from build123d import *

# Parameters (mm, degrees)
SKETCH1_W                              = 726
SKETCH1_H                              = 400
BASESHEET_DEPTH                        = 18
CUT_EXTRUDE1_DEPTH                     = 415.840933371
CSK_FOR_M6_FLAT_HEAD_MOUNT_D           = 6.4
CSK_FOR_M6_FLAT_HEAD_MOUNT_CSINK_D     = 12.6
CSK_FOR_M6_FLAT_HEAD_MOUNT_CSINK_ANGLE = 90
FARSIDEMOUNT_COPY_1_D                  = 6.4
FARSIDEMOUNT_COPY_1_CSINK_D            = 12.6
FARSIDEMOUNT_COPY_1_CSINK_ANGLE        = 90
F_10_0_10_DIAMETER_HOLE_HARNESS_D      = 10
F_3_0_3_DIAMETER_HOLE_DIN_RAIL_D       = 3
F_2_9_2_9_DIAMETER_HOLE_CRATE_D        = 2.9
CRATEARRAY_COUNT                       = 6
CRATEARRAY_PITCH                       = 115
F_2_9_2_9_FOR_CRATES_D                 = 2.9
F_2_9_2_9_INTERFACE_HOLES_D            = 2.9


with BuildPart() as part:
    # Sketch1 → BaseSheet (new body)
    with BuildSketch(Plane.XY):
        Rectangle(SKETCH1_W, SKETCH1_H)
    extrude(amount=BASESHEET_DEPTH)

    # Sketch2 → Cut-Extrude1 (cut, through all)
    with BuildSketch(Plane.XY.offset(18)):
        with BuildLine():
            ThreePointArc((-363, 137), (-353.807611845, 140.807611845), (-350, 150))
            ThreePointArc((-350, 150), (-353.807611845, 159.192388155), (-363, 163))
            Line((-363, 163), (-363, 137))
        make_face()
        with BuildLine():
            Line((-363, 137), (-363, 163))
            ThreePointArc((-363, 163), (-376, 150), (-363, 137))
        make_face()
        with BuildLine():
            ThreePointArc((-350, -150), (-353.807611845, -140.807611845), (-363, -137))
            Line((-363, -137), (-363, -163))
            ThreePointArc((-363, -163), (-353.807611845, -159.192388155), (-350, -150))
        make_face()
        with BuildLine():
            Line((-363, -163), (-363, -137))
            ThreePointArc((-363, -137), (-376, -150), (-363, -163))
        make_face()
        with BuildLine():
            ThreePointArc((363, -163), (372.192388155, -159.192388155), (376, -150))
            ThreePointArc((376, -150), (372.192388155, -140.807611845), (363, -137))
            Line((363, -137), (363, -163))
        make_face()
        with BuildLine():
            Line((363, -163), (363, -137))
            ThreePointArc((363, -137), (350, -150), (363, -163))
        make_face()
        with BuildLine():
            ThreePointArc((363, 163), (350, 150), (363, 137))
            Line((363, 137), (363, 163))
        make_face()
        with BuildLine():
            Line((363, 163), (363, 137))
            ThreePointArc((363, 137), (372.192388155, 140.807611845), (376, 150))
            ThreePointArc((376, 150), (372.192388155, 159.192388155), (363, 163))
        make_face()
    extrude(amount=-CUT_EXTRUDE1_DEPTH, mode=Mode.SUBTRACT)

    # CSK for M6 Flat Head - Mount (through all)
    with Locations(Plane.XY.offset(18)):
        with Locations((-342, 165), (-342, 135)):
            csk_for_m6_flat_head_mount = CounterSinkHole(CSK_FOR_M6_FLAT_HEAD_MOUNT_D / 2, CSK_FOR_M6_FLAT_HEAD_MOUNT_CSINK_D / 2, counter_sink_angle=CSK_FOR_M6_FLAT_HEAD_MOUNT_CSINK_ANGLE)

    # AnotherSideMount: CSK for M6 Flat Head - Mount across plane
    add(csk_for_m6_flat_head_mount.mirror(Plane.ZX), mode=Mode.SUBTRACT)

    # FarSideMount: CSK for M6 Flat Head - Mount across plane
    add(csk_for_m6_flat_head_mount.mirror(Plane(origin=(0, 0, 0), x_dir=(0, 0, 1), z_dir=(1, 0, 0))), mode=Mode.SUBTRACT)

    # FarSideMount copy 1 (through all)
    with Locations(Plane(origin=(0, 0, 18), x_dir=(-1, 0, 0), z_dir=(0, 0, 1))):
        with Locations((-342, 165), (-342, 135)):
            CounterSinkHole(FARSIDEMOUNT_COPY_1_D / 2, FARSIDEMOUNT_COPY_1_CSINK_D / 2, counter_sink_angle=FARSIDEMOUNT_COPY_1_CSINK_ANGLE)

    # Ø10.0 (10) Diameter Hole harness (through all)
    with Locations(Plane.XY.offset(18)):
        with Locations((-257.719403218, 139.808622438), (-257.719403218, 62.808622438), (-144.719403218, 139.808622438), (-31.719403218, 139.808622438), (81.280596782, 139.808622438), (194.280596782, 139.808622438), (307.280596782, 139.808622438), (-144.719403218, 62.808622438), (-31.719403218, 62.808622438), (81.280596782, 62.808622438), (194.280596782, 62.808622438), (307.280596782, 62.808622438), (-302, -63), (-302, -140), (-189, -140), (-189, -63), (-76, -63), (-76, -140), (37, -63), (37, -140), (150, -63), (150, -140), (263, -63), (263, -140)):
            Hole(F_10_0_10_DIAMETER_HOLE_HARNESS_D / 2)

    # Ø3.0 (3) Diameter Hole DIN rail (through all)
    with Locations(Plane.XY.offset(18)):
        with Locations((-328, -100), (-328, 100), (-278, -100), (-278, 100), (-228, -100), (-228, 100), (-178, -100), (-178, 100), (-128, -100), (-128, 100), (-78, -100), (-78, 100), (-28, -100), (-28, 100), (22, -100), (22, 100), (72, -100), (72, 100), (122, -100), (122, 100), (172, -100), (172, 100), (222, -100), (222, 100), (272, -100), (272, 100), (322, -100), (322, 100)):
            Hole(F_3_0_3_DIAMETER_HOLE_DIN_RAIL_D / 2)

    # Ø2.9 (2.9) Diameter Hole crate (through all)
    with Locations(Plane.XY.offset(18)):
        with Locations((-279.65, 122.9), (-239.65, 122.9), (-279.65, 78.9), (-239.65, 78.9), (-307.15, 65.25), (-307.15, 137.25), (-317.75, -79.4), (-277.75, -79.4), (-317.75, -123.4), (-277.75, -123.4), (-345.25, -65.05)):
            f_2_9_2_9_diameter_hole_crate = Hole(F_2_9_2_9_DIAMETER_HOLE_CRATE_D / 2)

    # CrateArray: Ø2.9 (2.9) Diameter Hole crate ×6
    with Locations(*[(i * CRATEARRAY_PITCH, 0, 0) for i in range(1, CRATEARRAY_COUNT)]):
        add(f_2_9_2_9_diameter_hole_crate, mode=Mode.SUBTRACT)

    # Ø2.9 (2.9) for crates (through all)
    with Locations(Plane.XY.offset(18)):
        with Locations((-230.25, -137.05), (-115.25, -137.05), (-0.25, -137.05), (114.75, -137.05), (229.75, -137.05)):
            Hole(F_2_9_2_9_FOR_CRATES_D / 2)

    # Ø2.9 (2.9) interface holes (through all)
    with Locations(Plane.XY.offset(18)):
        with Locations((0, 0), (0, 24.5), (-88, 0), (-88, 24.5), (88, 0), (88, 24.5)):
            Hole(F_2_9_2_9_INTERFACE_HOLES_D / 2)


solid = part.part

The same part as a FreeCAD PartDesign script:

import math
import FreeCAD as App
import Part
import Sketcher
Q = App.Units.Quantity


def add_polygon(sketch, points):
    """Adds a closed chain of lines whose ends are joined by coincident constraints."""
    first, n = sketch.GeometryCount, len(points)
    for a, b in zip(points, points[1:] + points[:1]):
        sketch.addGeometry(Part.LineSegment(App.Vector(*a, 0), App.Vector(*b, 0)), False)
    for i in range(n):
        sketch.addConstraint(Sketcher.Constraint("Coincident", first + i, 2, first + (i + 1) % n, 1))

doc = App.newDocument("Part")
body = doc.addObject("PartDesign::Body", "Body")

# Sketch on XY plane
sketch1 = body.newObject("Sketcher::SketchObject", "Sketch")
sketch1.AttachmentSupport = (doc.getObject("XY_Plane"), [""])
sketch1.MapMode = "FlatFace"
add_polygon(sketch1, [(-363, 200), (-363, -200), (363, -200), (363, 200)])  # lines 0-3
sketch1.addConstraint([
    Sketcher.Constraint("Vertical", 0),
    Sketcher.Constraint("Horizontal", 1),
    Sketcher.Constraint("Vertical", 2),
    Sketcher.Constraint("Horizontal", 3),
    Sketcher.Constraint("Symmetric", 0, 2, 2, 2, -1, 1),
    Sketcher.Constraint("DistanceX", 1, 1, 1, 2, Q("726 mm")),
    Sketcher.Constraint("DistanceY", 0, 2, 0, 1, Q("400 mm")),
])
pad1 = body.newObject("PartDesign::Pad", "Pad")
pad1.Profile = sketch1
pad1.Length = 18

# Sketch on XY plane
sketch2 = body.newObject("Sketcher::SketchObject", "Sketch001")
sketch2.AttachmentSupport = (doc.getObject("XY_Plane"), [""])
sketch2.MapMode = "FlatFace"
sketch2.AttachmentOffset = App.Placement(App.Vector(0, 0, 18), App.Rotation())
sketch2.addGeometry([
    Part.ArcOfCircle(Part.Circle(App.Vector(-363, 150, 0), App.Vector(0, 0, 1), 13), math.radians(-90), math.radians(0)),  # 0
    Part.ArcOfCircle(Part.Circle(App.Vector(-363, 150, 0), App.Vector(0, 0, 1), 13), math.radians(0), math.radians(90)),  # 1
    Part.ArcOfCircle(Part.Circle(App.Vector(-363, 150, 0), App.Vector(0, 0, 1), 13), math.radians(90), math.radians(270)),  # 2
    Part.ArcOfCircle(Part.Circle(App.Vector(-363, -150, 0), App.Vector(0, 0, 1), 13), math.radians(0), math.radians(90)),  # 3
    Part.ArcOfCircle(Part.Circle(App.Vector(-363, -150, 0), App.Vector(0, 0, 1), 13), math.radians(90), math.radians(270)),  # 4
    Part.ArcOfCircle(Part.Circle(App.Vector(-363, -150, 0), App.Vector(0, 0, 1), 13), math.radians(-90), math.radians(0)),  # 5
    Part.ArcOfCircle(Part.Circle(App.Vector(363, -150, 0), App.Vector(0, 0, 1), 13), math.radians(-90), math.radians(0)),  # 6
    Part.ArcOfCircle(Part.Circle(App.Vector(363, -150, 0), App.Vector(0, 0, 1), 13), math.radians(0), math.radians(90)),  # 7
    Part.ArcOfCircle(Part.Circle(App.Vector(363, -150, 0), App.Vector(0, 0, 1), 13), math.radians(90), math.radians(270)),  # 8
    Part.ArcOfCircle(Part.Circle(App.Vector(363, 150, 0), App.Vector(0, 0, 1), 13), math.radians(90), math.radians(270)),  # 9
    Part.ArcOfCircle(Part.Circle(App.Vector(363, 150, 0), App.Vector(0, 0, 1), 13), math.radians(-90), math.radians(0)),  # 10
    Part.ArcOfCircle(Part.Circle(App.Vector(363, 150, 0), App.Vector(0, 0, 1), 13), math.radians(0), math.radians(90)),  # 11
], False)
sketch2.addConstraint([
    Sketcher.Constraint("Tangent", 0, 2, 1, 1),
    Sketcher.Constraint("Tangent", 1, 2, 2, 1),
    Sketcher.Constraint("Tangent", 2, 2, 0, 1),
    Sketcher.Constraint("Tangent", 3, 2, 4, 1),
    Sketcher.Constraint("Tangent", 4, 2, 5, 1),
    Sketcher.Constraint("Tangent", 5, 2, 3, 1),
    Sketcher.Constraint("Tangent", 6, 2, 7, 1),
    Sketcher.Constraint("Tangent", 7, 2, 8, 1),
    Sketcher.Constraint("Tangent", 8, 2, 6, 1),
    Sketcher.Constraint("Tangent", 9, 2, 10, 1),
    Sketcher.Constraint("Tangent", 10, 2, 11, 1),
    Sketcher.Constraint("Tangent", 11, 2, 9, 1),
    Sketcher.Constraint("Equal", 2, 3),
    Sketcher.Constraint("Equal", 5, 6),
    Sketcher.Constraint("Equal", 8, 9),
    Sketcher.Constraint("Symmetric", 0, 3, 6, 3, -1, 1),
    Sketcher.Constraint("Symmetric", 3, 3, 9, 3, -1, 1),
    Sketcher.Constraint("Symmetric", 3, 3, 6, 3, -2),
    Sketcher.Constraint("Horizontal", 11, 3, 0, 2),
    Sketcher.Constraint("Horizontal", 8, 3, 5, 2),
    Sketcher.Constraint("Horizontal", 5, 2, 6, 2),
    Sketcher.Constraint("Horizontal", 0, 2, 10, 2),
    Sketcher.Constraint("Vertical", 5, 3, 1, 2),
    Sketcher.Constraint("Vertical", 1, 2, 2, 2),
    Sketcher.Constraint("Vertical", 2, 2, 3, 2),
    Sketcher.Constraint("Vertical", 3, 2, 4, 2),
    Sketcher.Constraint("Vertical", 11, 3, 7, 2),
    Sketcher.Constraint("Vertical", 7, 2, 8, 2),
    Sketcher.Constraint("Vertical", 8, 2, 9, 2),
    Sketcher.Constraint("Vertical", 9, 2, 11, 2),
    Sketcher.Constraint("Radius", 0, Q("13 mm")),
    Sketcher.Constraint("DistanceX", 0, 3, -1, 1, Q("363 mm")),
    Sketcher.Constraint("DistanceY", -1, 1, 0, 3, Q("150 mm")),
])
pocket1 = body.newObject("PartDesign::Pocket", "Pocket")
pocket1.Profile = sketch2
pocket1.Type = "ThroughAll"

# Sketch on XY plane
sketch3 = body.newObject("Sketcher::SketchObject", "Sketch002")
sketch3.AttachmentSupport = (doc.getObject("XY_Plane"), [""])
sketch3.MapMode = "FlatFace"
sketch3.AttachmentOffset = App.Placement(App.Vector(0, 0, 18), App.Rotation())
sketch3.addGeometry([
    Part.Circle(App.Vector(-342, 165, 0), App.Vector(0, 0, 1), 3.2),
    Part.Circle(App.Vector(-342, 135, 0), App.Vector(0, 0, 1), 3.2),
], False)
sketch3.addConstraint([
    Sketcher.Constraint("Equal", 0, 1),
    Sketcher.Constraint("Vertical", 0, 3, 1, 3),
    Sketcher.Constraint("Diameter", 0, Q("6.4 mm")),
    Sketcher.Constraint("DistanceX", 0, 3, -1, 1, Q("342 mm")),
    Sketcher.Constraint("DistanceY", -1, 1, 0, 3, Q("165 mm")),
    Sketcher.Constraint("DistanceY", -1, 1, 1, 3, Q("135 mm")),
])
doc.recompute()
hole = body.newObject("PartDesign::Hole", "Hole")
hole.Profile = sketch3
hole.ThreadType = "None"
hole.Diameter = 6.4
hole.DepthType = "ThroughAll"
hole.HoleCutType = "Countersink"
hole.HoleCutDiameter = 12.6
hole.HoleCutCountersinkAngle = 90
doc.recompute()

mirrored = body.newObject("PartDesign::Mirrored", "Mirrored")
mirrored.Originals = [hole]
mirrored.MirrorPlane = (doc.getObject("XZ_Plane"), [""])
body.Tip = mirrored
doc.recompute()

mirrored2 = body.newObject("PartDesign::Mirrored", "Mirrored001")
mirrored2.Originals = [hole]
mirrored2.MirrorPlane = (doc.getObject("YZ_Plane"), [""])
body.Tip = mirrored2

# Sketch on XY plane
sketch4 = body.newObject("Sketcher::SketchObject", "Sketch003")
sketch4.AttachmentSupport = (doc.getObject("XY_Plane"), [""])
sketch4.MapMode = "FlatFace"
sketch4.AttachmentOffset = App.Placement(App.Vector(0, 0, 18), App.Rotation())
sketch4.addGeometry([
    Part.Circle(App.Vector(342, -165, 0), App.Vector(0, 0, 1), 3.2),
    Part.Circle(App.Vector(342, -135, 0), App.Vector(0, 0, 1), 3.2),
], False)
sketch4.addConstraint([
    Sketcher.Constraint("Equal", 0, 1),
    Sketcher.Constraint("Vertical", 0, 3, 1, 3),
    Sketcher.Constraint("Diameter", 0, Q("6.4 mm")),
    Sketcher.Constraint("DistanceX", -1, 1, 0, 3, Q("342 mm")),
    Sketcher.Constraint("DistanceY", 0, 3, -1, 1, Q("165 mm")),
    Sketcher.Constraint("DistanceY", 1, 3, -1, 1, Q("135 mm")),
])
doc.recompute()
hole2 = body.newObject("PartDesign::Hole", "Hole001")
hole2.Profile = sketch4
hole2.ThreadType = "None"
hole2.Diameter = 6.4
hole2.DepthType = "ThroughAll"
hole2.HoleCutType = "Countersink"
hole2.HoleCutDiameter = 12.6
hole2.HoleCutCountersinkAngle = 90

# Sketch on XY plane
sketch5 = body.newObject("Sketcher::SketchObject", "Sketch004")
sketch5.AttachmentSupport = (doc.getObject("XY_Plane"), [""])
sketch5.MapMode = "FlatFace"
sketch5.AttachmentOffset = App.Placement(App.Vector(0, 0, 18), App.Rotation())
sketch5.addGeometry([
    Part.Circle(App.Vector(-258, 140, 0), App.Vector(0, 0, 1), 5),  # 0
    Part.Circle(App.Vector(-258, 63, 0), App.Vector(0, 0, 1), 5),  # 1
    Part.Circle(App.Vector(-145, 140, 0), App.Vector(0, 0, 1), 5),  # 2
    Part.Circle(App.Vector(-32, 140, 0), App.Vector(0, 0, 1), 5),  # 3
    Part.Circle(App.Vector(81, 140, 0), App.Vector(0, 0, 1), 5),  # 4
    Part.Circle(App.Vector(194, 140, 0), App.Vector(0, 0, 1), 5),  # 5
    Part.Circle(App.Vector(307, 140, 0), App.Vector(0, 0, 1), 5),  # 6
    Part.Circle(App.Vector(-145, 63, 0), App.Vector(0, 0, 1), 5),  # 7
    Part.Circle(App.Vector(-32, 63, 0), App.Vector(0, 0, 1), 5),  # 8
    Part.Circle(App.Vector(81, 63, 0), App.Vector(0, 0, 1), 5),  # 9
    Part.Circle(App.Vector(194, 63, 0), App.Vector(0, 0, 1), 5),  # 10
    Part.Circle(App.Vector(307, 63, 0), App.Vector(0, 0, 1), 5),  # 11
    Part.Circle(App.Vector(-302, -63, 0), App.Vector(0, 0, 1), 5),  # 12
    Part.Circle(App.Vector(-302, -140, 0), App.Vector(0, 0, 1), 5),  # 13
    Part.Circle(App.Vector(-189, -140, 0), App.Vector(0, 0, 1), 5),  # 14
    Part.Circle(App.Vector(-189, -63, 0), App.Vector(0, 0, 1), 5),  # 15
    Part.Circle(App.Vector(-76, -63, 0), App.Vector(0, 0, 1), 5),  # 16
    Part.Circle(App.Vector(-76, -140, 0), App.Vector(0, 0, 1), 5),  # 17
    Part.Circle(App.Vector(37, -63, 0), App.Vector(0, 0, 1), 5),  # 18
    Part.Circle(App.Vector(37, -140, 0), App.Vector(0, 0, 1), 5),  # 19
    Part.Circle(App.Vector(150, -63, 0), App.Vector(0, 0, 1), 5),  # 20
    Part.Circle(App.Vector(150, -140, 0), App.Vector(0, 0, 1), 5),  # 21
    Part.Circle(App.Vector(263, -63, 0), App.Vector(0, 0, 1), 5),  # 22
    Part.Circle(App.Vector(263, -140, 0), App.Vector(0, 0, 1), 5),  # 23
], False)
sketch5.addConstraint([
    Sketcher.Constraint("Equal", 0, 1),
    Sketcher.Constraint("Equal", 1, 2),
    Sketcher.Constraint("Equal", 2, 3),
    Sketcher.Constraint("Equal", 3, 4),
    Sketcher.Constraint("Equal", 4, 5),
    Sketcher.Constraint("Equal", 5, 6),
    Sketcher.Constraint("Equal", 6, 7),
    Sketcher.Constraint("Equal", 7, 8),
    Sketcher.Constraint("Equal", 8, 9),
    Sketcher.Constraint("Equal", 9, 10),
    Sketcher.Constraint("Equal", 10, 11),
    Sketcher.Constraint("Equal", 11, 12),
    Sketcher.Constraint("Equal", 12, 13),
    Sketcher.Constraint("Equal", 13, 14),
    Sketcher.Constraint("Equal", 14, 15),
    Sketcher.Constraint("Equal", 15, 16),
    Sketcher.Constraint("Equal", 16, 17),
    Sketcher.Constraint("Equal", 17, 18),
    Sketcher.Constraint("Equal", 18, 19),
    Sketcher.Constraint("Equal", 19, 20),
    Sketcher.Constraint("Equal", 20, 21),
    Sketcher.Constraint("Equal", 21, 22),
    Sketcher.Constraint("Equal", 22, 23),
    Sketcher.Constraint("Horizontal", 0, 3, 2, 3),
    Sketcher.Constraint("Horizontal", 2, 3, 3, 3),
    Sketcher.Constraint("Horizontal", 3, 3, 4, 3),
    Sketcher.Constraint("Horizontal", 4, 3, 5, 3),
    Sketcher.Constraint("Horizontal", 5, 3, 6, 3),
    Sketcher.Constraint("Horizontal", 1, 3, 7, 3),
    Sketcher.Constraint("Horizontal", 7, 3, 8, 3),
    Sketcher.Constraint("Horizontal", 8, 3, 9, 3),
    Sketcher.Constraint("Horizontal", 9, 3, 10, 3),
    Sketcher.Constraint("Horizontal", 10, 3, 11, 3),
    Sketcher.Constraint("Horizontal", 13, 3, 14, 3),
    Sketcher.Constraint("Horizontal", 12, 3, 15, 3),
    Sketcher.Constraint("Horizontal", 15, 3, 16, 3),
    Sketcher.Constraint("Horizontal", 14, 3, 17, 3),
    Sketcher.Constraint("Horizontal", 16, 3, 18, 3),
    Sketcher.Constraint("Horizontal", 17, 3, 19, 3),
    Sketcher.Constraint("Horizontal", 18, 3, 20, 3),
    Sketcher.Constraint("Horizontal", 19, 3, 21, 3),
    Sketcher.Constraint("Horizontal", 20, 3, 22, 3),
    Sketcher.Constraint("Horizontal", 21, 3, 23, 3),
    Sketcher.Constraint("Vertical", 0, 3, 1, 3),
    Sketcher.Constraint("Vertical", 2, 3, 7, 3),
    Sketcher.Constraint("Vertical", 3, 3, 8, 3),
    Sketcher.Constraint("Vertical", 4, 3, 9, 3),
    Sketcher.Constraint("Vertical", 5, 3, 10, 3),
    Sketcher.Constraint("Vertical", 6, 3, 11, 3),
    Sketcher.Constraint("Vertical", 12, 3, 13, 3),
    Sketcher.Constraint("Vertical", 14, 3, 15, 3),
    Sketcher.Constraint("Vertical", 16, 3, 17, 3),
    Sketcher.Constraint("Vertical", 18, 3, 19, 3),
    Sketcher.Constraint("Vertical", 20, 3, 21, 3),
    Sketcher.Constraint("Vertical", 22, 3, 23, 3),
    Sketcher.Constraint("Diameter", 0, Q("10 mm")),
    Sketcher.Constraint("DistanceX", 12, 3, -1, 1, Q("302 mm")),
    Sketcher.Constraint("DistanceY", 12, 3, -1, 1, Q("63 mm")),
    Sketcher.Constraint("DistanceY", 13, 3, -1, 1, Q("140 mm")),
    Sketcher.Constraint("DistanceX", 14, 3, -1, 1, Q("189 mm")),
    Sketcher.Constraint("DistanceX", 16, 3, -1, 1, Q("76 mm")),
    Sketcher.Constraint("DistanceX", -1, 1, 18, 3, Q("37 mm")),
    Sketcher.Constraint("DistanceX", -1, 1, 20, 3, Q("150 mm")),
    Sketcher.Constraint("DistanceX", -1, 1, 22, 3, Q("263 mm")),
    Sketcher.Constraint("DistanceY", 1, 3, 0, 3, Q("77 mm")),
    Sketcher.Constraint("DistanceX", 0, 3, 2, 3, Q("113 mm")),
    Sketcher.Constraint("DistanceX", 2, 3, 3, 3, Q("113 mm")),
    Sketcher.Constraint("DistanceX", 3, 3, 4, 3, Q("113 mm")),
    Sketcher.Constraint("DistanceX", 4, 3, 5, 3, Q("113 mm")),
    Sketcher.Constraint("DistanceX", 5, 3, 6, 3, Q("113 mm")),
    Sketcher.Constraint("DistanceX", 0, 3, -1, 1, Q("257.719403 mm")),
    Sketcher.Constraint("DistanceY", -1, 1, 0, 3, Q("139.808622 mm")),
])
doc.recompute()
hole3 = body.newObject("PartDesign::Hole", "Hole002")
hole3.Profile = sketch5
hole3.ThreadType = "None"
hole3.Diameter = 10
hole3.DepthType = "ThroughAll"

# Sketch on XY plane
sketch6 = body.newObject("Sketcher::SketchObject", "Sketch005")
sketch6.AttachmentSupport = (doc.getObject("XY_Plane"), [""])
sketch6.MapMode = "FlatFace"
sketch6.AttachmentOffset = App.Placement(App.Vector(0, 0, 18), App.Rotation())
sketch6.addGeometry([
    Part.Circle(App.Vector(-328, -100, 0), App.Vector(0, 0, 1), 1.5),  # 0
    Part.Circle(App.Vector(-328, 100, 0), App.Vector(0, 0, 1), 1.5),  # 1
    Part.Circle(App.Vector(-278, -100, 0), App.Vector(0, 0, 1), 1.5),  # 2
    Part.Circle(App.Vector(-278, 100, 0), App.Vector(0, 0, 1), 1.5),  # 3
    Part.Circle(App.Vector(-228, -100, 0), App.Vector(0, 0, 1), 1.5),  # 4
    Part.Circle(App.Vector(-228, 100, 0), App.Vector(0, 0, 1), 1.5),  # 5
    Part.Circle(App.Vector(-178, -100, 0), App.Vector(0, 0, 1), 1.5),  # 6
    Part.Circle(App.Vector(-178, 100, 0), App.Vector(0, 0, 1), 1.5),  # 7
    Part.Circle(App.Vector(-128, -100, 0), App.Vector(0, 0, 1), 1.5),  # 8
    Part.Circle(App.Vector(-128, 100, 0), App.Vector(0, 0, 1), 1.5),  # 9
    Part.Circle(App.Vector(-78, -100, 0), App.Vector(0, 0, 1), 1.5),  # 10
    Part.Circle(App.Vector(-78, 100, 0), App.Vector(0, 0, 1), 1.5),  # 11
    Part.Circle(App.Vector(-28, -100, 0), App.Vector(0, 0, 1), 1.5),  # 12
    Part.Circle(App.Vector(-28, 100, 0), App.Vector(0, 0, 1), 1.5),  # 13
    Part.Circle(App.Vector(22, -100, 0), App.Vector(0, 0, 1), 1.5),  # 14
    Part.Circle(App.Vector(22, 100, 0), App.Vector(0, 0, 1), 1.5),  # 15
    Part.Circle(App.Vector(72, -100, 0), App.Vector(0, 0, 1), 1.5),  # 16
    Part.Circle(App.Vector(72, 100, 0), App.Vector(0, 0, 1), 1.5),  # 17
    Part.Circle(App.Vector(122, -100, 0), App.Vector(0, 0, 1), 1.5),  # 18
    Part.Circle(App.Vector(122, 100, 0), App.Vector(0, 0, 1), 1.5),  # 19
    Part.Circle(App.Vector(172, -100, 0), App.Vector(0, 0, 1), 1.5),  # 20
    Part.Circle(App.Vector(172, 100, 0), App.Vector(0, 0, 1), 1.5),  # 21
    Part.Circle(App.Vector(222, -100, 0), App.Vector(0, 0, 1), 1.5),  # 22
    Part.Circle(App.Vector(222, 100, 0), App.Vector(0, 0, 1), 1.5),  # 23
    Part.Circle(App.Vector(272, -100, 0), App.Vector(0, 0, 1), 1.5),  # 24
    Part.Circle(App.Vector(272, 100, 0), App.Vector(0, 0, 1), 1.5),  # 25
    Part.Circle(App.Vector(322, -100, 0), App.Vector(0, 0, 1), 1.5),  # 26
    Part.Circle(App.Vector(322, 100, 0), App.Vector(0, 0, 1), 1.5),  # 27
], False)
sketch6.addConstraint([
    Sketcher.Constraint("Equal", 0, 1),
    Sketcher.Constraint("Equal", 1, 2),
    Sketcher.Constraint("Equal", 2, 3),
    Sketcher.Constraint("Equal", 3, 4),
    Sketcher.Constraint("Equal", 4, 5),
    Sketcher.Constraint("Equal", 5, 6),
    Sketcher.Constraint("Equal", 6, 7),
    Sketcher.Constraint("Equal", 7, 8),
    Sketcher.Constraint("Equal", 8, 9),
    Sketcher.Constraint("Equal", 9, 10),
    Sketcher.Constraint("Equal", 10, 11),
    Sketcher.Constraint("Equal", 11, 12),
    Sketcher.Constraint("Equal", 12, 13),
    Sketcher.Constraint("Equal", 13, 14),
    Sketcher.Constraint("Equal", 14, 15),
    Sketcher.Constraint("Equal", 15, 16),
    Sketcher.Constraint("Equal", 16, 17),
    Sketcher.Constraint("Equal", 17, 18),
    Sketcher.Constraint("Equal", 18, 19),
    Sketcher.Constraint("Equal", 19, 20),
    Sketcher.Constraint("Equal", 20, 21),
    Sketcher.Constraint("Equal", 21, 22),
    Sketcher.Constraint("Equal", 22, 23),
    Sketcher.Constraint("Equal", 23, 24),
    Sketcher.Constraint("Equal", 24, 25),
    Sketcher.Constraint("Equal", 25, 26),
    Sketcher.Constraint("Equal", 26, 27),
    Sketcher.Constraint("Symmetric", 0, 3, 1, 3, -1),
    Sketcher.Constraint("Symmetric", 2, 3, 3, 3, -1),
    Sketcher.Constraint("Symmetric", 4, 3, 5, 3, -1),
    Sketcher.Constraint("Symmetric", 6, 3, 7, 3, -1),
    Sketcher.Constraint("Symmetric", 8, 3, 9, 3, -1),
    Sketcher.Constraint("Symmetric", 10, 3, 11, 3, -1),
    Sketcher.Constraint("Symmetric", 12, 3, 13, 3, -1),
    Sketcher.Constraint("Symmetric", 14, 3, 15, 3, -1),
    Sketcher.Constraint("Symmetric", 16, 3, 17, 3, -1),
    Sketcher.Constraint("Symmetric", 18, 3, 19, 3, -1),
    Sketcher.Constraint("Symmetric", 20, 3, 21, 3, -1),
    Sketcher.Constraint("Symmetric", 22, 3, 23, 3, -1),
    Sketcher.Constraint("Symmetric", 24, 3, 25, 3, -1),
    Sketcher.Constraint("Symmetric", 26, 3, 27, 3, -1),
    Sketcher.Constraint("Horizontal", 0, 3, 2, 3),
    Sketcher.Constraint("Horizontal", 2, 3, 4, 3),
    Sketcher.Constraint("Horizontal", 4, 3, 6, 3),
    Sketcher.Constraint("Horizontal", 6, 3, 8, 3),
    Sketcher.Constraint("Horizontal", 8, 3, 10, 3),
    Sketcher.Constraint("Horizontal", 10, 3, 12, 3),
    Sketcher.Constraint("Horizontal", 12, 3, 14, 3),
    Sketcher.Constraint("Horizontal", 14, 3, 16, 3),
    Sketcher.Constraint("Horizontal", 16, 3, 18, 3),
    Sketcher.Constraint("Horizontal", 18, 3, 20, 3),
    Sketcher.Constraint("Horizontal", 20, 3, 22, 3),
    Sketcher.Constraint("Horizontal", 22, 3, 24, 3),
    Sketcher.Constraint("Horizontal", 24, 3, 26, 3),
    Sketcher.Constraint("Diameter", 0, Q("3 mm")),
    Sketcher.Constraint("DistanceX", 0, 3, -1, 1, Q("328 mm")),
    Sketcher.Constraint("DistanceY", 0, 3, -1, 1, Q("100 mm")),
    Sketcher.Constraint("DistanceX", 2, 3, -1, 1, Q("278 mm")),
    Sketcher.Constraint("DistanceX", 4, 3, -1, 1, Q("228 mm")),
    Sketcher.Constraint("DistanceX", 6, 3, -1, 1, Q("178 mm")),
    Sketcher.Constraint("DistanceX", 8, 3, -1, 1, Q("128 mm")),
    Sketcher.Constraint("DistanceX", 10, 3, -1, 1, Q("78 mm")),
    Sketcher.Constraint("DistanceX", 12, 3, -1, 1, Q("28 mm")),
    Sketcher.Constraint("DistanceX", -1, 1, 14, 3, Q("22 mm")),
    Sketcher.Constraint("DistanceX", -1, 1, 16, 3, Q("72 mm")),
    Sketcher.Constraint("DistanceX", -1, 1, 18, 3, Q("122 mm")),
    Sketcher.Constraint("DistanceX", -1, 1, 20, 3, Q("172 mm")),
    Sketcher.Constraint("DistanceX", -1, 1, 22, 3, Q("222 mm")),
    Sketcher.Constraint("DistanceX", -1, 1, 24, 3, Q("272 mm")),
    Sketcher.Constraint("DistanceX", -1, 1, 26, 3, Q("322 mm")),
])
doc.recompute()
hole4 = body.newObject("PartDesign::Hole", "Hole003")
hole4.Profile = sketch6
hole4.ThreadType = "None"
hole4.Diameter = 3
hole4.DepthType = "ThroughAll"

# Sketch on XY plane
sketch7 = body.newObject("Sketcher::SketchObject", "Sketch006")
sketch7.AttachmentSupport = (doc.getObject("XY_Plane"), [""])
sketch7.MapMode = "FlatFace"
sketch7.AttachmentOffset = App.Placement(App.Vector(0, 0, 18), App.Rotation())
sketch7.addGeometry([
    Part.Circle(App.Vector(-279.6, 122.9, 0), App.Vector(0, 0, 1), 1.4),  # 0
    Part.Circle(App.Vector(-239.7, 122.9, 0), App.Vector(0, 0, 1), 1.4),  # 1
    Part.Circle(App.Vector(-279.6, 78.9, 0), App.Vector(0, 0, 1), 1.4),  # 2
    Part.Circle(App.Vector(-239.7, 78.9, 0), App.Vector(0, 0, 1), 1.4),  # 3
    Part.Circle(App.Vector(-307.1, 65.2, 0), App.Vector(0, 0, 1), 1.4),  # 4
    Part.Circle(App.Vector(-307.1, 137.2, 0), App.Vector(0, 0, 1), 1.4),  # 5
    Part.Circle(App.Vector(-317.8, -79.4, 0), App.Vector(0, 0, 1), 1.4),  # 6
    Part.Circle(App.Vector(-277.8, -79.4, 0), App.Vector(0, 0, 1), 1.4),  # 7
    Part.Circle(App.Vector(-317.8, -123.4, 0), App.Vector(0, 0, 1), 1.4),  # 8
    Part.Circle(App.Vector(-277.8, -123.4, 0), App.Vector(0, 0, 1), 1.4),  # 9
    Part.Circle(App.Vector(-345.2, -65, 0), App.Vector(0, 0, 1), 1.4),  # 10
], False)
sketch7.addConstraint([
    Sketcher.Constraint("Equal", 0, 1),
    Sketcher.Constraint("Equal", 1, 2),
    Sketcher.Constraint("Equal", 2, 3),
    Sketcher.Constraint("Equal", 3, 4),
    Sketcher.Constraint("Equal", 4, 5),
    Sketcher.Constraint("Equal", 5, 6),
    Sketcher.Constraint("Equal", 6, 7),
    Sketcher.Constraint("Equal", 7, 8),
    Sketcher.Constraint("Equal", 8, 9),
    Sketcher.Constraint("Equal", 9, 10),
    Sketcher.Constraint("Horizontal", 0, 3, 1, 3),
    Sketcher.Constraint("Horizontal", 2, 3, 3, 3),
    Sketcher.Constraint("Horizontal", 6, 3, 7, 3),
    Sketcher.Constraint("Horizontal", 8, 3, 9, 3),
    Sketcher.Constraint("Vertical", 0, 3, 2, 3),
    Sketcher.Constraint("Vertical", 1, 3, 3, 3),
    Sketcher.Constraint("Vertical", 4, 3, 5, 3),
    Sketcher.Constraint("Vertical", 6, 3, 8, 3),
    Sketcher.Constraint("Vertical", 7, 3, 9, 3),
    Sketcher.Constraint("Diameter", 0, Q("2.9 mm")),
    Sketcher.Constraint("DistanceX", 0, 3, 1, 3, Q("40 mm")),
    Sketcher.Constraint("DistanceY", 2, 3, 0, 3, Q("44 mm")),
    Sketcher.Constraint("DistanceY", 4, 3, 5, 3, Q("72 mm")),
    Sketcher.Constraint("DistanceX", 6, 3, 7, 3, Q("40 mm")),
    Sketcher.Constraint("DistanceY", 8, 3, 6, 3, Q("44 mm")),
    Sketcher.Constraint("DistanceY", -1, 1, 0, 3, Q("122.9 mm")),
    Sketcher.Constraint("DistanceY", 6, 3, -1, 1, Q("79.4 mm")),
    Sketcher.Constraint("DistanceX", 4, 3, 2, 3, Q("27.5 mm")),
    Sketcher.Constraint("DistanceX", 6, 3, 4, 3, Q("10.6 mm")),
    Sketcher.Constraint("DistanceX", 10, 3, 6, 3, Q("27.5 mm")),
    Sketcher.Constraint("DistanceY", 10, 3, 4, 3, Q("130.3 mm")),
    Sketcher.Constraint("DistanceX", 0, 3, -1, 1, Q("279.65 mm")),
    Sketcher.Constraint("DistanceY", -1, 1, 4, 3, Q("65.25 mm")),
])
doc.recompute()
hole5 = body.newObject("PartDesign::Hole", "Hole004")
hole5.Profile = sketch7
hole5.ThreadType = "None"
hole5.Diameter = 2.9
hole5.DepthType = "ThroughAll"
doc.recompute()

linearpattern = body.newObject("PartDesign::LinearPattern", "LinearPattern")
linearpattern.Originals = [hole5]
linearpattern.Direction = (doc.getObject("X_Axis"), [""])
linearpattern.Mode = "offset"
linearpattern.Offset = 115
linearpattern.Occurrences = 6
body.Tip = linearpattern

# Sketch on XY plane
sketch8 = body.newObject("Sketcher::SketchObject", "Sketch007")
sketch8.AttachmentSupport = (doc.getObject("XY_Plane"), [""])
sketch8.MapMode = "FlatFace"
sketch8.AttachmentOffset = App.Placement(App.Vector(0, 0, 18), App.Rotation())
sketch8.addGeometry([
    Part.Circle(App.Vector(-230.2, -137.1, 0), App.Vector(0, 0, 1), 1.4),  # 0
    Part.Circle(App.Vector(-115.2, -137.1, 0), App.Vector(0, 0, 1), 1.4),  # 1
    Part.Circle(App.Vector(-0.2, -137.1, 0), App.Vector(0, 0, 1), 1.4),  # 2
    Part.Circle(App.Vector(114.8, -137.1, 0), App.Vector(0, 0, 1), 1.4),  # 3
    Part.Circle(App.Vector(229.8, -137.1, 0), App.Vector(0, 0, 1), 1.4),  # 4
], False)
sketch8.addConstraint([
    Sketcher.Constraint("Equal", 0, 1),
    Sketcher.Constraint("Equal", 1, 2),
    Sketcher.Constraint("Equal", 2, 3),
    Sketcher.Constraint("Equal", 3, 4),
    Sketcher.Constraint("Horizontal", 0, 3, 1, 3),
    Sketcher.Constraint("Horizontal", 1, 3, 2, 3),
    Sketcher.Constraint("Horizontal", 2, 3, 3, 3),
    Sketcher.Constraint("Horizontal", 3, 3, 4, 3),
    Sketcher.Constraint("Diameter", 0, Q("2.9 mm")),
    Sketcher.Constraint("DistanceX", 0, 3, 1, 3, Q("115 mm")),
    Sketcher.Constraint("DistanceX", 1, 3, 2, 3, Q("115 mm")),
    Sketcher.Constraint("DistanceX", 2, 3, 3, 3, Q("115 mm")),
    Sketcher.Constraint("DistanceX", 3, 3, 4, 3, Q("115 mm")),
    Sketcher.Constraint("DistanceX", 0, 3, -1, 1, Q("230.25 mm")),
    Sketcher.Constraint("DistanceY", 0, 3, -1, 1, Q("137.05 mm")),
])
doc.recompute()
hole6 = body.newObject("PartDesign::Hole", "Hole005")
hole6.Profile = sketch8
hole6.ThreadType = "None"
hole6.Diameter = 2.9
hole6.DepthType = "ThroughAll"

# Sketch on XY plane
sketch9 = body.newObject("Sketcher::SketchObject", "Sketch008")
sketch9.AttachmentSupport = (doc.getObject("XY_Plane"), [""])
sketch9.MapMode = "FlatFace"
sketch9.AttachmentOffset = App.Placement(App.Vector(0, 0, 18), App.Rotation())
sketch9.addGeometry([
    Part.Circle(App.Vector(0, 0, 0), App.Vector(0, 0, 1), 1.4),  # 0
    Part.Circle(App.Vector(0, 24.5, 0), App.Vector(0, 0, 1), 1.4),  # 1
    Part.Circle(App.Vector(-88, 0, 0), App.Vector(0, 0, 1), 1.4),  # 2
    Part.Circle(App.Vector(-88, 24.5, 0), App.Vector(0, 0, 1), 1.4),  # 3
    Part.Circle(App.Vector(88, 0, 0), App.Vector(0, 0, 1), 1.4),  # 4
    Part.Circle(App.Vector(88, 24.5, 0), App.Vector(0, 0, 1), 1.4),  # 5
], False)
sketch9.addConstraint([
    Sketcher.Constraint("Coincident", 0, 3, -1, 1),
    Sketcher.Constraint("Equal", 0, 1),
    Sketcher.Constraint("Equal", 1, 2),
    Sketcher.Constraint("Equal", 2, 3),
    Sketcher.Constraint("Equal", 3, 4),
    Sketcher.Constraint("Equal", 4, 5),
    Sketcher.Constraint("Symmetric", 2, 3, 4, 3, -1, 1),
    Sketcher.Constraint("Symmetric", 3, 3, 5, 3, -2),
    Sketcher.Constraint("PointOnObject", 1, 3, -2),
    Sketcher.Constraint("PointOnObject", 2, 3, -1),
    Sketcher.Constraint("Horizontal", 1, 3, 3, 3),
    Sketcher.Constraint("Vertical", 2, 3, 3, 3),
    Sketcher.Constraint("Diameter", 0, Q("2.9 mm")),
    Sketcher.Constraint("DistanceX", 2, 3, -1, 1, Q("88 mm")),
    Sketcher.Constraint("DistanceY", -1, 1, 1, 3, Q("24.5 mm")),
])
doc.recompute()
hole7 = body.newObject("PartDesign::Hole", "Hole006")
hole7.Profile = sketch9
hole7.ThreadType = "None"
hole7.Diameter = 2.9
hole7.DepthType = "ThroughAll"

doc.recompute()
